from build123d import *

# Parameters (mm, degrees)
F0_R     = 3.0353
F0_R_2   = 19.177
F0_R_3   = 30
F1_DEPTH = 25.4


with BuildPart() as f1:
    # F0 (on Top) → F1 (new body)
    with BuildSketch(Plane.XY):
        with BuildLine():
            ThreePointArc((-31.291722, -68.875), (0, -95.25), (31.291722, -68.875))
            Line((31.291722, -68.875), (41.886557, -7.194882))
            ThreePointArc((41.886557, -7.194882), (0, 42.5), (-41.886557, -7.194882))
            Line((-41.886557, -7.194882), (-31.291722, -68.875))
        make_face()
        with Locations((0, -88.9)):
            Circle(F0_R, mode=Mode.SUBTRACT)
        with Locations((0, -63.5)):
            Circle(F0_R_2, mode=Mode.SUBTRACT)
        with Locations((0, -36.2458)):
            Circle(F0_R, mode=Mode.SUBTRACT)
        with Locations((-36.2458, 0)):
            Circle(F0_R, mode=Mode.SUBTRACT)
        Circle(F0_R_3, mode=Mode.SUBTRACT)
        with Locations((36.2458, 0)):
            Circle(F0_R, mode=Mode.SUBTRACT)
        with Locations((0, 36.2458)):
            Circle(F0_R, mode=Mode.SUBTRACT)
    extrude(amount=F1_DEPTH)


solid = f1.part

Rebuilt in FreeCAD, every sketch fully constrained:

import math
import FreeCAD as App
import Part
import Sketcher

V = App.Vector
Q = App.Units.Quantity

doc = App.newDocument("Part")
body = doc.addObject("PartDesign::Body", "Body")

# Sketch on XY plane
sketch1 = body.newObject("Sketcher::SketchObject", "Sketch")
sketch1.AttachmentSupport = (doc.getObject("XY_Plane"), [""])
sketch1.MapMode = "FlatFace"
sketch1.addGeometry([
    Part.ArcOfCircle(Part.Circle(V(0, -63.5, 0), V(0, 0, 1), 31.75), math.radians(-170.253382), math.radians(-9.746618)),  # 0
    Part.LineSegment(V(31.291722, -68.875, 0), V(41.886557, -7.194882, 0)),  # 1
    Part.ArcOfCircle(Part.Circle(V(0, 0, 0), V(0, 0, 1), 42.5), math.radians(-9.746619), math.radians(189.746619)),  # 2
    Part.LineSegment(V(-41.886557, -7.194882, 0), V(-31.291722, -68.875, 0)),  # 3
    Part.Circle(V(0, -88.9, 0), V(0, 0, 1), 3.0353),  # 4
    Part.Circle(V(0, -63.5, 0), V(0, 0, 1), 19.177),  # 5
    Part.Circle(V(0, -36.2458, 0), V(0, 0, 1), 3.0353),  # 6
    Part.Circle(V(-36.2458, 0, 0), V(0, 0, 1), 3.0353),  # 7
    Part.Circle(V(0, 0, 0), V(0, 0, 1), 30),  # 8
    Part.Circle(V(36.2458, 0, 0), V(0, 0, 1), 3.0353),  # 9
    Part.Circle(V(0, 36.2458, 0), V(0, 0, 1), 3.0353),  # 10
], False)
sketch1.addConstraint([
    Sketcher.Constraint("Tangent", 0, 2, 1, 1),
    Sketcher.Constraint("Tangent", 1, 2, 2, 1),
    Sketcher.Constraint("Tangent", 2, 2, 3, 1),
    Sketcher.Constraint("Tangent", 3, 2, 0, 1),
    Sketcher.Constraint("Coincident", 2, 3, -1, 1),
    Sketcher.Constraint("Coincident", 8, 3, -1, 1),
    Sketcher.Constraint("Coincident", 5, 3, 0, 3),
    Sketcher.Constraint("Equal", 4, 6),
    Sketcher.Constraint("Equal", 6, 7),
    Sketcher.Constraint("Equal", 7, 9),
    Sketcher.Constraint("Equal", 9, 10),
    Sketcher.Constraint("Symmetric", 7, 3, 9, 3, -1, 1),
    Sketcher.Constraint("Symmetric", 6, 3, 10, 3, -1, 1),
    Sketcher.Constraint("PointOnObject", 0, 3, -2),
    Sketcher.Constraint("PointOnObject", 4, 3, -2),
    Sketcher.Constraint("PointOnObject", 6, 3, -2),
    Sketcher.Constraint("PointOnObject", 7, 3, -1),
    Sketcher.Constraint("Diameter", 5, Q("1.51 in")),
    Sketcher.Constraint("Radius", 0, Q("1.25 in")),
    Sketcher.Constraint("Diameter", 4, Q("0.239 in")),
    Sketcher.Constraint("DistanceY", 4, 3, 0, 3, Q("1 in")),
    Sketcher.Constraint("DistanceY", 0, 3, -1, 1, Q("2.5 in")),
    Sketcher.Constraint("Diameter", 8, Q("60 mm")),
    Sketcher.Constraint("Radius", 2, Q("42.5 mm")),
    Sketcher.Constraint("DistanceY", 6, 3, -1, 1, Q("1.427 in")),
    Sketcher.Constraint("DistanceX", 7, 3, -1, 1, Q("1.427 in")),
])
pad1 = body.newObject("PartDesign::Pad", "Pad")
pad1.Profile = sketch1
pad1.Length = Q("1 in")

doc.recompute()
